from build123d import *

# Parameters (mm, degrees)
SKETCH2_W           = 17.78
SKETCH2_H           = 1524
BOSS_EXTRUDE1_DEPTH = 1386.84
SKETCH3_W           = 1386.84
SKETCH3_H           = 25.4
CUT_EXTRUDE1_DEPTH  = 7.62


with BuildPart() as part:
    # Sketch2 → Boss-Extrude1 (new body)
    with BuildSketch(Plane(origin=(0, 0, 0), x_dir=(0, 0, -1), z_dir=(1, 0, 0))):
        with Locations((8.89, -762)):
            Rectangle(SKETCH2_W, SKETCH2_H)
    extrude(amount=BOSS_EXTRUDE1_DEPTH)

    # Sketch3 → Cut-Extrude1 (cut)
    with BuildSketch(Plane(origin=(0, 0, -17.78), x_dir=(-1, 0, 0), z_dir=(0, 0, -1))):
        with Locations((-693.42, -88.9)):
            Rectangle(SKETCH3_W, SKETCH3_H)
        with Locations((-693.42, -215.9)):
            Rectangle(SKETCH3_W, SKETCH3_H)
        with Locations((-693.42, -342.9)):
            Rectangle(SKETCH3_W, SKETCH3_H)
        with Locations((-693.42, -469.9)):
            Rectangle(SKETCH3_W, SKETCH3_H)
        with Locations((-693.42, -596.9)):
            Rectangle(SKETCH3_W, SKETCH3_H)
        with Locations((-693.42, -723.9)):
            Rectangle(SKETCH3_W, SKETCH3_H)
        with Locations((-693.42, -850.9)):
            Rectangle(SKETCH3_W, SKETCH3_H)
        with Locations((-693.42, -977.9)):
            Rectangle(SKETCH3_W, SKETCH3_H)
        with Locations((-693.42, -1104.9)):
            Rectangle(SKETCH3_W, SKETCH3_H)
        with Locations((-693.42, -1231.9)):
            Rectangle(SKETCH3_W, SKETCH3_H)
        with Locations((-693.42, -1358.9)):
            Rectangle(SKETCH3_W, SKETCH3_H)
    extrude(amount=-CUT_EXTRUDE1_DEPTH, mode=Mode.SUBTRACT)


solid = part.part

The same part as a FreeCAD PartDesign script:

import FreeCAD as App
import Part
import Sketcher
Q = App.Units.Quantity


def add_polygon(sketch, points):
    """Adds a closed chain of lines whose ends are joined by coincident constraints."""
    first, n = sketch.GeometryCount, len(points)
    for a, b in zip(points, points[1:] + points[:1]):
        sketch.addGeometry(Part.LineSegment(App.Vector(*a, 0), App.Vector(*b, 0)), False)
    for i in range(n):
        sketch.addConstraint(Sketcher.Constraint("Coincident", first + i, 2, first + (i + 1) % n, 1))

doc = App.newDocument("Part")
body = doc.addObject("PartDesign::Body", "Body")

# Sketch on YZ plane
sketch1 = body.newObject("Sketcher::SketchObject", "Sketch")
sketch1.AttachmentSupport = (doc.getObject("YZ_Plane"), [""])
sketch1.MapMode = "FlatFace"
add_polygon(sketch1, [(0, 0), (-1524, 0), (-1524, -18), (0, -18)])  # lines 0-3
sketch1.addConstraint([
    Sketcher.Constraint("Horizontal", 0),
    Sketcher.Constraint("Vertical", 1),
    Sketcher.Constraint("Horizontal", 2),
    Sketcher.Constraint("Vertical", 3),
    Sketcher.Constraint("Coincident", 3, 2, -1, 1),
    Sketcher.Constraint("DistanceX", 0, 2, 0, 1, Q("60 in")),
    Sketcher.Constraint("DistanceY", 1, 2, 1, 1, Q("0.7 in")),
])
pad1 = body.newObject("PartDesign::Pad", "Pad")
pad1.Profile = sketch1
pad1.Length = Q("54.6 in")

# Sketch on XY plane
sketch2 = body.newObject("Sketcher::SketchObject", "Sketch001")
sketch2.AttachmentSupport = (doc.getObject("XY_Plane"), [""])
sketch2.MapMode = "FlatFace"
sketch2.AttachmentOffset = App.Placement(App.Vector(0, 0, -0.7 * 25.4), App.Rotation())
add_polygon(sketch2, [(1387, -76), (1387, -102), (0, -102), (0, -76)])  # lines 0-3
add_polygon(sketch2, [(1387, -203), (1387, -229), (0, -229), (0, -203)])  # lines 4-7
add_polygon(sketch2, [(1387, -330), (1387, -356), (0, -356), (0, -330)])  # lines 8-11
add_polygon(sketch2, [(1387, -457), (1387, -483), (0, -483), (0, -457)])  # lines 12-15
add_polygon(sketch2, [(1387, -584), (1387, -610), (0, -610), (0, -584)])  # lines 16-19
add_polygon(sketch2, [(1387, -711), (1387, -737), (0, -737), (0, -711)])  # lines 20-23
add_polygon(sketch2, [(1387, -838), (1387, -864), (0, -864), (0, -838)])  # lines 24-27
add_polygon(sketch2, [(1387, -965), (1387, -991), (0, -991), (0, -965)])  # lines 28-31
add_polygon(sketch2, [(1387, -1092), (1387, -1118), (0, -1118), (0, -1092)])  # lines 32-35
add_polygon(sketch2, [(1387, -1219), (1387, -1245), (0, -1245), (0, -1219)])  # lines 36-39
add_polygon(sketch2, [(1387, -1346), (1387, -1372), (0, -1372), (0, -1346)])  # lines 40-43
sketch2.addConstraint([
    Sketcher.Constraint("Vertical", 0),
    Sketcher.Constraint("Horizontal", 1),
    Sketcher.Constraint("Vertical", 2),
    Sketcher.Constraint("Horizontal", 3),
    Sketcher.Constraint("Vertical", 4),
    Sketcher.Constraint("Horizontal", 5),
    Sketcher.Constraint("Vertical", 6),
    Sketcher.Constraint("Horizontal", 7),
    Sketcher.Constraint("Vertical", 8),
    Sketcher.Constraint("Horizontal", 9),
    Sketcher.Constraint("Vertical", 10),
    Sketcher.Constraint("Horizontal", 11),
    Sketcher.Constraint("Vertical", 12),
    Sketcher.Constraint("Horizontal", 13),
    Sketcher.Constraint("Vertical", 14),
    Sketcher.Constraint("Horizontal", 15),
    Sketcher.Constraint("Vertical", 16),
    Sketcher.Constraint("Horizontal", 17),
    Sketcher.Constraint("Vertical", 18),
    Sketcher.Constraint("Horizontal", 19),
    Sketcher.Constraint("Vertical", 20),
    Sketcher.Constraint("Horizontal", 21),
    Sketcher.Constraint("Vertical", 22),
    Sketcher.Constraint("Horizontal", 23),
    Sketcher.Constraint("Vertical", 24),
    Sketcher.Constraint("Horizontal", 25),
    Sketcher.Constraint("Vertical", 26),
    Sketcher.Constraint("Horizontal", 27),
    Sketcher.Constraint("Vertical", 28),
    Sketcher.Constraint("Horizontal", 29),
    Sketcher.Constraint("Vertical", 30),
    Sketcher.Constraint("Horizontal", 31),
    Sketcher.Constraint("Vertical", 32),
    Sketcher.Constraint("Horizontal", 33),
    Sketcher.Constraint("Vertical", 34),
    Sketcher.Constraint("Horizontal", 35),
    Sketcher.Constraint("Vertical", 36),
    Sketcher.Constraint("Horizontal", 37),
    Sketcher.Constraint("Vertical", 38),
    Sketcher.Constraint("Horizontal", 39),
    Sketcher.Constraint("Vertical", 40),
    Sketcher.Constraint("Horizontal", 41),
    Sketcher.Constraint("Vertical", 42),
    Sketcher.Constraint("Horizontal", 43),
    Sketcher.Constraint("PointOnObject", 1, 2, -2),
    Sketcher.Constraint("PointOnObject", 5, 2, -2),
    Sketcher.Constraint("PointOnObject", 9, 2, -2),
    Sketcher.Constraint("PointOnObject", 13, 2, -2),
    Sketcher.Constraint("PointOnObject", 17, 2, -2),
    Sketcher.Constraint("PointOnObject", 21, 2, -2),
    Sketcher.Constraint("PointOnObject", 25, 2, -2),
    Sketcher.Constraint("PointOnObject", 29, 2, -2),
    Sketcher.Constraint("PointOnObject", 33, 2, -2),
    Sketcher.Constraint("PointOnObject", 37, 2, -2),
    Sketcher.Constraint("PointOnObject", 41, 2, -2),
    Sketcher.Constraint("Vertical", 3, 2, 4, 2),
    Sketcher.Constraint("Vertical", 7, 2, 8, 2),
    Sketcher.Constraint("Vertical", 11, 2, 12, 2),
    Sketcher.Constraint("Vertical", 15, 2, 16, 2),
    Sketcher.Constraint("Vertical", 19, 2, 20, 2),
    Sketcher.Constraint("Vertical", 23, 2, 24, 2),
    Sketcher.Constraint("Vertical", 27, 2, 28, 2),
    Sketcher.Constraint("Vertical", 31, 2, 32, 2),
    Sketcher.Constraint("Vertical", 35, 2, 36, 2),
    Sketcher.Constraint("Vertical", 39, 2, 40, 2),
    Sketcher.Constraint("Equal", 2, 4),
    Sketcher.Constraint("Equal", 6, 8),
    Sketcher.Constraint("Equal", 10, 12),
    Sketcher.Constraint("Equal", 14, 16),
    Sketcher.Constraint("Equal", 18, 20),
    Sketcher.Constraint("Equal", 22, 24),
    Sketcher.Constraint("Equal", 26, 28),
    Sketcher.Constraint("Equal", 30, 32),
    Sketcher.Constraint("Equal", 34, 36),
    Sketcher.Constraint("Equal", 38, 40),
    Sketcher.Constraint("DistanceY", 0, 2, 0, 1, Q("1 in")),
    Sketcher.Constraint("DistanceX", 1, 2, 1, 1, Q("54.6 in")),
    Sketcher.Constraint("DistanceY", 0, 2, -1, 1, Q("4 in")),
    Sketcher.Constraint("DistanceY", 4, 2, -1, 1, Q("9 in")),
    Sketcher.Constraint("DistanceY", 8, 2, -1, 1, Q("14 in")),
    Sketcher.Constraint("DistanceY", 12, 2, -1, 1, Q("19 in")),
    Sketcher.Constraint("DistanceY", 16, 2, -1, 1, Q("24 in")),
    Sketcher.Constraint("DistanceY", 20, 2, -1, 1, Q("29 in")),
    Sketcher.Constraint("DistanceY", 24, 2, -1, 1, Q("34 in")),
    Sketcher.Constraint("DistanceY", 28, 2, -1, 1, Q("39 in")),
    Sketcher.Constraint("DistanceY", 32, 2, -1, 1, Q("44 in")),
    Sketcher.Constraint("DistanceY", 36, 2, -1, 1, Q("49 in")),
    Sketcher.Constraint("DistanceY", 40, 2, -1, 1, Q("54 in")),
])
pocket1 = body.newObject("PartDesign::Pocket", "Pocket")
pocket1.Profile = sketch2
pocket1.Length = Q("0.3 in")
pocket1.Reversed = True

doc.recompute()
